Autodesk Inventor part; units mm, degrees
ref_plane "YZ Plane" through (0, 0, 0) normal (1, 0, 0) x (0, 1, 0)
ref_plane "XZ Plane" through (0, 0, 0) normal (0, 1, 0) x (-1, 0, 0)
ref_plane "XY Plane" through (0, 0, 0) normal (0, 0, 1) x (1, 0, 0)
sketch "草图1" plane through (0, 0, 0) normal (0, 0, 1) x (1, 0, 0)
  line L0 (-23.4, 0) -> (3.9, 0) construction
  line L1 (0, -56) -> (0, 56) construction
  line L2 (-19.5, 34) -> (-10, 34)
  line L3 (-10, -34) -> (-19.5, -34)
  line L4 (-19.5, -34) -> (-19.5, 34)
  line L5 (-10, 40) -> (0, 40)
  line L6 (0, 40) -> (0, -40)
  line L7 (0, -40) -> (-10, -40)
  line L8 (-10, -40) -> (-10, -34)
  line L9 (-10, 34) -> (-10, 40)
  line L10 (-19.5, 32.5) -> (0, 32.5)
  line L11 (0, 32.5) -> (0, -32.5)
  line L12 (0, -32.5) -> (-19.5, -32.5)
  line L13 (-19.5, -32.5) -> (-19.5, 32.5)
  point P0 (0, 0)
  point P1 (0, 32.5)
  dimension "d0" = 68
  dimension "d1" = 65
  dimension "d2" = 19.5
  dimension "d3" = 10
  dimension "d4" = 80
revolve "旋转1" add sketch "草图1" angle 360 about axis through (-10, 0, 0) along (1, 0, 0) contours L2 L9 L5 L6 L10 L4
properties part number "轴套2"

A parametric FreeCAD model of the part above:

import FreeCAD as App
import Part
import Sketcher

V = App.Vector
Q = App.Units.Quantity

doc = App.newDocument("Part")
params = doc.addObject("Spreadsheet::Sheet", "Params")
for row, (alias, value) in enumerate([
    ("sketch1_width", "10 mm"),
    ("sketch1_width2", "19.5 mm"),
    ("sketch1_height", "6 mm"),
    ("sketch1_height2", "1.5 mm"),
    ("revolution_angle", "360 deg"),
], start=1):
    params.set(f"A{row}", alias)
    params.set(f"B{row}", "=" + value)
    params.setAlias(f"B{row}", alias)

body = doc.addObject("PartDesign::Body", "Body")

sketch1 = body.newObject("Sketcher::SketchObject", "Sketch")
sketch1.AttachmentSupport = (doc.getObject("XY_Plane"), [""])
sketch1.MapMode = "FlatFace"
sketch1.addGeometry([
    Part.LineSegment(V(-10, 34, 0), V(-19.5, 34, 0)),
    Part.LineSegment(V(-19.5, 34, 0), V(-19.5, 32.5, 0)),
    Part.LineSegment(V(-19.5, 32.5, 0), V(0, 32.5, 0)),
    Part.LineSegment(V(0, 32.5, 0), V(0, 40, 0)),
    Part.LineSegment(V(0, 40, 0), V(-10, 40, 0)),
    Part.LineSegment(V(-10, 40, 0), V(-10, 34, 0)),
], False)
sketch1.addConstraint([
    Sketcher.Constraint("Coincident", 0, 2, 1, 1),
    Sketcher.Constraint("Coincident", 1, 2, 2, 1),
    Sketcher.Constraint("Coincident", 2, 2, 3, 1),
    Sketcher.Constraint("Coincident", 3, 2, 4, 1),
    Sketcher.Constraint("Coincident", 4, 2, 5, 1),
    Sketcher.Constraint("Coincident", 5, 2, 0, 1),
    Sketcher.Constraint("Horizontal", 0),
    Sketcher.Constraint("Vertical", 1),
    Sketcher.Constraint("Horizontal", 2),
    Sketcher.Constraint("Vertical", 3),
    Sketcher.Constraint("Horizontal", 4),
    Sketcher.Constraint("Vertical", 5),
    Sketcher.Constraint("PointOnObject", 2, 2, -2),
    Sketcher.Constraint("DistanceX", 4, 2, 4, 1, Q("10 mm")),
    Sketcher.Constraint("DistanceX", 2, 1, 2, 2, Q("19.5 mm")),
    Sketcher.Constraint("DistanceY", 5, 2, 5, 1, Q("6 mm")),
    Sketcher.Constraint("DistanceY", 1, 2, 1, 1, Q("1.5 mm")),
    Sketcher.Constraint("DistanceY", -1, 1, 0, 2, Q("34 mm")),
])
sketch1.setExpression("Constraints[13]", "Params.sketch1_width")
sketch1.setExpression("Constraints[14]", "Params.sketch1_width2")
sketch1.setExpression("Constraints[15]", "Params.sketch1_height")
sketch1.setExpression("Constraints[16]", "Params.sketch1_height2")
revolution = body.newObject("PartDesign::Revolution", "Revolution")
revolution.Profile = sketch1
revolution.ReferenceAxis = (sketch1, ["H_Axis"])
revolution.setExpression("Angle", "Params.revolution_angle")

doc.recompute()
